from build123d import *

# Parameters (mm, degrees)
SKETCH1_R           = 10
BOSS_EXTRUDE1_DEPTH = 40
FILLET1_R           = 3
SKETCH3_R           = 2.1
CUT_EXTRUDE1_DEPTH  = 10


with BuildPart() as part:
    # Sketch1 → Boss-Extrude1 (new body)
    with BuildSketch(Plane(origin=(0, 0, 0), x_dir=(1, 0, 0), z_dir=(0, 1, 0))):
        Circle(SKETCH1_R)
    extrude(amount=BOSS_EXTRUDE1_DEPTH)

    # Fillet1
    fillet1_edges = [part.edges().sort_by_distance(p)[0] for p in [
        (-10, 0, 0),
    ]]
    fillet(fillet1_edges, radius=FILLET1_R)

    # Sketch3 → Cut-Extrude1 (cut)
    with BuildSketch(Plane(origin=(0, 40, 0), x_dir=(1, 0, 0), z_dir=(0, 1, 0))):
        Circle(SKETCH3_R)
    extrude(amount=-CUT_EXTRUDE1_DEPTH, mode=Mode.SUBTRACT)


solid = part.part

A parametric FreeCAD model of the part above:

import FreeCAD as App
import Part
import Sketcher

V = App.Vector


def edges_at(feature, points):
    """Names of the edges that pass closest to the given points."""
    edges = feature.Shape.Edges
    near = lambda p: min(range(len(edges)), key=lambda i: edges[i].distToShape(Part.Vertex(*p))[0])
    return sorted({f"Edge{near(p) + 1}" for p in points})

doc = App.newDocument("Part")
body = doc.addObject("PartDesign::Body", "Body")

sketch1 = doc.addObject("Sketcher::SketchObject", "Sketch")
body.addObject(sketch1)
sketch1.AttachmentSupport = (doc.XZ_Plane, [""])
sketch1.MapMode = "FlatFace"
sketch1.addGeometry(Part.Circle(V(0, 0, 0), V(0, 0, 1), 10), False)
sketch1.addConstraint(Sketcher.Constraint("Coincident", 0, 3, -1, 1))
sketch1.addConstraint(Sketcher.Constraint("Diameter", 0, 20.0))
pad1 = doc.addObject("PartDesign::Pad", "Pad")
body.addObject(pad1)
pad1.Profile = sketch1
pad1.Length = 40
pad1.Reversed = True
doc.recompute()

fillet = doc.addObject("PartDesign::Fillet", "Fillet")
body.addObject(fillet)
fillet.Base = (pad1, edges_at(pad1, [(-10, 0, 0)]))
fillet.Radius = 3

sketch2 = doc.addObject("Sketcher::SketchObject", "Sketch001")
body.addObject(sketch2)
sketch2.AttachmentSupport = (doc.XZ_Plane, [""])
sketch2.MapMode = "FlatFace"
sketch2.AttachmentOffset = App.Placement(V(0, 0, -40), App.Rotation())
sketch2.addGeometry(Part.Circle(V(0, 0, 0), V(0, 0, 1), 2.1), False)
sketch2.addConstraint(Sketcher.Constraint("Coincident", 0, 3, -1, 1))
sketch2.addConstraint(Sketcher.Constraint("Diameter", 0, 4.2))
pocket1 = doc.addObject("PartDesign::Pocket", "Pocket")
body.addObject(pocket1)
pocket1.Profile = sketch2
pocket1.Length = 10
pocket1.Reversed = True

doc.recompute()
